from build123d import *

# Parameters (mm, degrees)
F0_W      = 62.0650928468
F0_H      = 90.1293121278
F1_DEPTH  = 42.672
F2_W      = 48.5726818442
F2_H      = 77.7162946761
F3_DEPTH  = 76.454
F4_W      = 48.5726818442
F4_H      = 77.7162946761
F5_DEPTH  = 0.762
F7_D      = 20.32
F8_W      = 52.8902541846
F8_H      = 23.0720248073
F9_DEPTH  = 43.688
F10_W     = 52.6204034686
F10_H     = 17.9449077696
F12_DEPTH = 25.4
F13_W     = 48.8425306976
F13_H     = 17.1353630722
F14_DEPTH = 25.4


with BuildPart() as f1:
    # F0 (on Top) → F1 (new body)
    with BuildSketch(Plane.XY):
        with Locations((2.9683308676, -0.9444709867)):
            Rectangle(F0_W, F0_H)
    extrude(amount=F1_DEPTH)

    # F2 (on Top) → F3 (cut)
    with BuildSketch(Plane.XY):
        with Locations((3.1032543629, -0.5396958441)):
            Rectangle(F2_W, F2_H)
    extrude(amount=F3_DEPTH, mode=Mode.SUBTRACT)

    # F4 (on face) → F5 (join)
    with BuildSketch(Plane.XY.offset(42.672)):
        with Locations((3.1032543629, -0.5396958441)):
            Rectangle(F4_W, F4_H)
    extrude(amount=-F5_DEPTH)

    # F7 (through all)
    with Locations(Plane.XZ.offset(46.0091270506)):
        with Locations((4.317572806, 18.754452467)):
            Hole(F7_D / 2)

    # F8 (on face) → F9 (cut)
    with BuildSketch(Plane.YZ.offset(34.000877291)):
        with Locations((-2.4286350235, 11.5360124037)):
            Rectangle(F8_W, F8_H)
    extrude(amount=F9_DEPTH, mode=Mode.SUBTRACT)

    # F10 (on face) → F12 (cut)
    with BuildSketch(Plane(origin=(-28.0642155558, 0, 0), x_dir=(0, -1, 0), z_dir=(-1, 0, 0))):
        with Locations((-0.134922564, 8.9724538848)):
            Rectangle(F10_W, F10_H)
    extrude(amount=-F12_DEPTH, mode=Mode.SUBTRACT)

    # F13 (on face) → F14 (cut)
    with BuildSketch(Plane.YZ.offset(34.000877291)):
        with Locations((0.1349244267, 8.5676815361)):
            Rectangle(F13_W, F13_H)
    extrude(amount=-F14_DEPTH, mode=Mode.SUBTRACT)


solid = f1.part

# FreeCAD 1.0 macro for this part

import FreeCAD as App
import Part
import Sketcher
Q = App.Units.Quantity


def add_polygon(sketch, points):
    """Adds a closed chain of lines whose ends are joined by coincident constraints."""
    first, n = sketch.GeometryCount, len(points)
    for a, b in zip(points, points[1:] + points[:1]):
        sketch.addGeometry(Part.LineSegment(App.Vector(*a, 0), App.Vector(*b, 0)), False)
    for i in range(n):
        sketch.addConstraint(Sketcher.Constraint("Coincident", first + i, 2, first + (i + 1) % n, 1))

doc = App.newDocument("Part")
body = doc.addObject("PartDesign::Body", "Body")

sketch1 = body.newObject("Sketcher::SketchObject", "Sketch")
sketch1.AttachmentSupport = (doc.getObject("XY_Plane"), [""])
sketch1.MapMode = "FlatFace"
add_polygon(sketch1, [(-28.064216, 44.120185), (-28.064216, -46.009127), (34.000877, -46.009127), (34.000877, 44.120185)])
sketch1.addConstraint([
    Sketcher.Constraint("Vertical", 0),
    Sketcher.Constraint("Horizontal", 1),
    Sketcher.Constraint("Vertical", 2),
    Sketcher.Constraint("Horizontal", 3),
    Sketcher.Constraint("DistanceX", 1, 1, 1, 2, Q("62.065093 mm")),
    Sketcher.Constraint("DistanceY", 0, 2, 0, 1, Q("90.129312 mm")),
    Sketcher.Constraint("DistanceX", 0, 2, -1, 1, Q("28.064216 mm")),
    Sketcher.Constraint("DistanceY", 0, 2, -1, 1, Q("46.009127 mm")),
])
pad1 = body.newObject("PartDesign::Pad", "Pad")
pad1.Profile = sketch1
pad1.Length = Q("1.68 in")

sketch2 = body.newObject("Sketcher::SketchObject", "Sketch001")
sketch2.AttachmentSupport = (doc.getObject("XY_Plane"), [""])
sketch2.MapMode = "FlatFace"
add_polygon(sketch2, [(-21.183087, 38.318451), (-21.183087, -39.397843), (27.389595, -39.397843), (27.389595, 38.318451)])
sketch2.addConstraint([
    Sketcher.Constraint("Vertical", 0),
    Sketcher.Constraint("Horizontal", 1),
    Sketcher.Constraint("Vertical", 2),
    Sketcher.Constraint("Horizontal", 3),
    Sketcher.Constraint("DistanceX", 1, 1, 1, 2, Q("48.572682 mm")),
    Sketcher.Constraint("DistanceY", 0, 2, 0, 1, Q("77.716295 mm")),
    Sketcher.Constraint("DistanceY", -1, 1, 2, 2, Q("38.318451 mm")),
    Sketcher.Constraint("DistanceX", 0, 2, -1, 1, Q("21.183087 mm")),
])
pocket1 = body.newObject("PartDesign::Pocket", "Pocket")
pocket1.Profile = sketch2
pocket1.Length = Q("3.01 in")
pocket1.Reversed = True

sketch3 = body.newObject("Sketcher::SketchObject", "Sketch002")
sketch3.AttachmentSupport = (doc.getObject("XY_Plane"), [""])
sketch3.MapMode = "FlatFace"
sketch3.AttachmentOffset = App.Placement(App.Vector(0, 0, 1.68 * 25.4), App.Rotation())
add_polygon(sketch3, [(-21.183087, 38.318451), (-21.183087, -39.397843), (27.389595, -39.397843), (27.389595, 38.318451)])
sketch3.addConstraint([
    Sketcher.Constraint("Vertical", 0),
    Sketcher.Constraint("Horizontal", 1),
    Sketcher.Constraint("Vertical", 2),
    Sketcher.Constraint("Horizontal", 3),
    Sketcher.Constraint("DistanceX", 1, 1, 1, 2, Q("48.572682 mm")),
    Sketcher.Constraint("DistanceY", 0, 2, 0, 1, Q("77.716295 mm")),
    Sketcher.Constraint("DistanceY", -1, 1, 2, 2, Q("38.318451 mm")),
    Sketcher.Constraint("DistanceX", 0, 2, -1, 1, Q("21.183087 mm")),
])
pad2 = body.newObject("PartDesign::Pad", "Pad001")
pad2.Profile = sketch3
pad2.Length = Q("0.03 in")
pad2.Reversed = True

sketch4 = body.newObject("Sketcher::SketchObject", "Sketch003")
sketch4.AttachmentSupport = (doc.getObject("XZ_Plane"), [""])
sketch4.MapMode = "FlatFace"
sketch4.AttachmentOffset = App.Placement(App.Vector(0, 0, 46.009127), App.Rotation())
sketch4.addGeometry(Part.Circle(App.Vector(4.317573, 18.754452, 0), App.Vector(0, 0, 1), 10.16), False)
sketch4.addConstraint([
    Sketcher.Constraint("Diameter", 0, Q("0.8 in")),
    Sketcher.Constraint("DistanceX", -1, 1, 0, 3, Q("4.317573 mm")),
    Sketcher.Constraint("DistanceY", -1, 1, 0, 3, Q("18.754452 mm")),
])
doc.recompute()
hole = body.newObject("PartDesign::Hole", "Hole")
hole.Profile = sketch4
hole.ThreadType = "None"
hole.Diameter = Q("0.8 in")
hole.DepthType = "ThroughAll"

sketch5 = body.newObject("Sketcher::SketchObject", "Sketch004")
sketch5.AttachmentSupport = (doc.getObject("YZ_Plane"), [""])
sketch5.MapMode = "FlatFace"
sketch5.AttachmentOffset = App.Placement(App.Vector(0, 0, 34.000877), App.Rotation())
add_polygon(sketch5, [(-28.873762, 23.072025), (-28.873762, 0), (24.016492, 0), (24.016492, 23.072025)])
sketch5.addConstraint([
    Sketcher.Constraint("Vertical", 0),
    Sketcher.Constraint("Horizontal", 1),
    Sketcher.Constraint("Vertical", 2),
    Sketcher.Constraint("Horizontal", 3),
    Sketcher.Constraint("PointOnObject", 0, 2, -1),
    Sketcher.Constraint("DistanceX", 1, 1, 1, 2, Q("52.890254 mm")),
    Sketcher.Constraint("DistanceY", 0, 2, 0, 1, Q("23.072025 mm")),
    Sketcher.Constraint("DistanceX", 0, 2, -1, 1, Q("28.873762 mm")),
])
pocket2 = body.newObject("PartDesign::Pocket", "Pocket001")
pocket2.Profile = sketch5
pocket2.Length = Q("1.72 in")
pocket2.Reversed = True

sketch6 = body.newObject("Sketcher::SketchObject", "Sketch005")
sketch6.AttachmentSupport = (doc.getObject("YZ_Plane"), [""])
sketch6.MapMode = "FlatFace"
sketch6.AttachmentOffset = App.Placement(App.Vector(0, 0, -28.064216), App.Rotation())
add_polygon(sketch6, [(26.445124, 17.944908), (26.445124, 0), (-26.175279, 0), (-26.175279, 17.944908)])
sketch6.addConstraint([
    Sketcher.Constraint("Vertical", 0),
    Sketcher.Constraint("Horizontal", 1),
    Sketcher.Constraint("Vertical", 2),
    Sketcher.Constraint("Horizontal", 3),
    Sketcher.Constraint("PointOnObject", 0, 2, -1),
    Sketcher.Constraint("DistanceX", 1, 2, 1, 1, Q("52.620403 mm")),
    Sketcher.Constraint("DistanceY", 0, 2, 0, 1, Q("17.944908 mm")),
    Sketcher.Constraint("DistanceX", 1, 2, -1, 1, Q("26.175279 mm")),
])
pocket3 = body.newObject("PartDesign::Pocket", "Pocket002")
pocket3.Profile = sketch6
pocket3.Length = Q("1 in")
pocket3.Reversed = True

sketch7 = body.newObject("Sketcher::SketchObject", "Sketch006")
sketch7.AttachmentSupport = (doc.getObject("YZ_Plane"), [""])
sketch7.MapMode = "FlatFace"
sketch7.AttachmentOffset = App.Placement(App.Vector(0, 0, 34.000877), App.Rotation())
add_polygon(sketch7, [(-24.286341, 17.135363), (-24.286341, 0), (24.55619, 0), (24.55619, 17.135363)])
sketch7.addConstraint([
    Sketcher.Constraint("Vertical", 0),
    Sketcher.Constraint("Horizontal", 1),
    Sketcher.Constraint("Vertical", 2),
    Sketcher.Constraint("Horizontal", 3),
    Sketcher.Constraint("PointOnObject", 0, 2, -1),
    Sketcher.Constraint("DistanceX", 1, 1, 1, 2, Q("48.842531 mm")),
    Sketcher.Constraint("DistanceY", 0, 2, 0, 1, Q("17.135363 mm")),
    Sketcher.Constraint("DistanceX", 0, 2, -1, 1, Q("24.286341 mm")),
])
pocket4 = body.newObject("PartDesign::Pocket", "Pocket003")
pocket4.Profile = sketch7
pocket4.Length = Q("1 in")

doc.recompute()
